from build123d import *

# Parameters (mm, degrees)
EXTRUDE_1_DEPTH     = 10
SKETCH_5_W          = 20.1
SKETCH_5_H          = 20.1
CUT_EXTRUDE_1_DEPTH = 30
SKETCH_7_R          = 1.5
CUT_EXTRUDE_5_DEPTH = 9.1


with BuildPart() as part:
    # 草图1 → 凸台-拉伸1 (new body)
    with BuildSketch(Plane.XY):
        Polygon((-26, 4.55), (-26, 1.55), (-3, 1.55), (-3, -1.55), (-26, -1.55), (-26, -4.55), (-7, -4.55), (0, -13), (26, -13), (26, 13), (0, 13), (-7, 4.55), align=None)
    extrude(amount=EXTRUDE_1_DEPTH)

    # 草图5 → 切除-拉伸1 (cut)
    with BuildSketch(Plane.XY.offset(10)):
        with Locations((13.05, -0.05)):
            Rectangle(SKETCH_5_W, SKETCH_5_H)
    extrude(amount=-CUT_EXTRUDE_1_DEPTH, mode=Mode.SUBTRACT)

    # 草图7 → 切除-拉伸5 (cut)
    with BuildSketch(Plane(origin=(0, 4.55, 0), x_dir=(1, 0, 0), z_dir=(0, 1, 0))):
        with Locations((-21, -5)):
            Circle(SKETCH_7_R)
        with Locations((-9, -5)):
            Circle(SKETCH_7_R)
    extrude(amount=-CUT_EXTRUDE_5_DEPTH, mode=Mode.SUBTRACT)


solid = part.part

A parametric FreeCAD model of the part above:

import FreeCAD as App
import Part
import Sketcher
from FreeCAD import Vector
Q = App.Units.Quantity

doc = App.newDocument("Part")
params = doc.addObject("Spreadsheet::Sheet", "Params")
for row, (alias, value) in enumerate([
    ("sketch1_width", "23 mm"),
    ("sketch1_width2", "19 mm"),
    ("sketch1_width3", "26 mm"),
    ("sketch1_height", "3 mm"),
    ("sketch1_height2", "3.1 mm"),
    ("pad1_length", "10 mm"),
    ("sketch2_width", "20.1 mm"),
    ("pocket1_length", "30 mm"),
    ("sketch3_diameter", "3 mm"),
    ("pocket2_length", "9.1 mm"),
], start=1):
    params.set(f"A{row}", alias)
    params.set(f"B{row}", "=" + value)
    params.setAlias(f"B{row}", alias)

body = doc.addObject("PartDesign::Body", "Body")

sketch1 = doc.addObject("Sketcher::SketchObject", "Sketch")
body.addObject(sketch1)
sketch1.AttachmentSupport = (doc.XY_Plane, [""])
sketch1.MapMode = "FlatFace"
sketch1.addGeometry(Part.LineSegment(Vector(-26, 4.55, 0), Vector(-26, 1.55, 0)), False)
sketch1.addGeometry(Part.LineSegment(Vector(-26, 1.55, 0), Vector(-3, 1.55, 0)), False)
sketch1.addGeometry(Part.LineSegment(Vector(-3, 1.55, 0), Vector(-3, -1.55, 0)), False)
sketch1.addGeometry(Part.LineSegment(Vector(-3, -1.55, 0), Vector(-26, -1.55, 0)), False)
sketch1.addGeometry(Part.LineSegment(Vector(-26, -1.55, 0), Vector(-26, -4.55, 0)), False)
sketch1.addGeometry(Part.LineSegment(Vector(-26, -4.55, 0), Vector(-7, -4.55, 0)), False)
sketch1.addGeometry(Part.LineSegment(Vector(-7, -4.55, 0), Vector(0, -13, 0)), False)
sketch1.addGeometry(Part.LineSegment(Vector(0, -13, 0), Vector(26, -13, 0)), False)
sketch1.addGeometry(Part.LineSegment(Vector(26, -13, 0), Vector(26, 13, 0)), False)
sketch1.addGeometry(Part.LineSegment(Vector(26, 13, 0), Vector(0, 13, 0)), False)
sketch1.addGeometry(Part.LineSegment(Vector(0, 13, 0), Vector(-7, 4.55, 0)), False)
sketch1.addGeometry(Part.LineSegment(Vector(-7, 4.55, 0), Vector(-26, 4.55, 0)), False)
sketch1.addConstraint(Sketcher.Constraint("Coincident", 0, 2, 1, 1))
sketch1.addConstraint(Sketcher.Constraint("Coincident", 1, 2, 2, 1))
sketch1.addConstraint(Sketcher.Constraint("Coincident", 2, 2, 3, 1))
sketch1.addConstraint(Sketcher.Constraint("Coincident", 3, 2, 4, 1))
sketch1.addConstraint(Sketcher.Constraint("Coincident", 4, 2, 5, 1))
sketch1.addConstraint(Sketcher.Constraint("Coincident", 5, 2, 6, 1))
sketch1.addConstraint(Sketcher.Constraint("Coincident", 6, 2, 7, 1))
sketch1.addConstraint(Sketcher.Constraint("Coincident", 7, 2, 8, 1))
sketch1.addConstraint(Sketcher.Constraint("Coincident", 8, 2, 9, 1))
sketch1.addConstraint(Sketcher.Constraint("Coincident", 9, 2, 10, 1))
sketch1.addConstraint(Sketcher.Constraint("Coincident", 10, 2, 11, 1))
sketch1.addConstraint(Sketcher.Constraint("Coincident", 11, 2, 0, 1))
sketch1.addConstraint(Sketcher.Constraint("Vertical", 0))
sketch1.addConstraint(Sketcher.Constraint("Horizontal", 1))
sketch1.addConstraint(Sketcher.Constraint("Vertical", 2))
sketch1.addConstraint(Sketcher.Constraint("Horizontal", 3))
sketch1.addConstraint(Sketcher.Constraint("Vertical", 4))
sketch1.addConstraint(Sketcher.Constraint("Horizontal", 5))
sketch1.addConstraint(Sketcher.Constraint("Horizontal", 7))
sketch1.addConstraint(Sketcher.Constraint("Vertical", 8))
sketch1.addConstraint(Sketcher.Constraint("Horizontal", 9))
sketch1.addConstraint(Sketcher.Constraint("Horizontal", 11))
sketch1.addConstraint(Sketcher.Constraint("Symmetric", 6, 2, 9, 2, -1, 1))
sketch1.addConstraint(Sketcher.Constraint("Symmetric", 0, 2, 3, 2, -1))
sketch1.addConstraint(Sketcher.Constraint("Symmetric", 5, 2, 10, 2, -1))
sketch1.addConstraint(Sketcher.Constraint("PointOnObject", 6, 2, -2))
sketch1.addConstraint(Sketcher.Constraint("Equal", 9, 8))
sketch1.addConstraint(Sketcher.Constraint("DistanceX", 1, 1, 1, 2, Q("23 mm")))
sketch1.addConstraint(Sketcher.Constraint("DistanceX", 5, 1, 5, 2, Q("19 mm")))
sketch1.addConstraint(Sketcher.Constraint("DistanceX", 7, 1, 7, 2, Q("26 mm")))
sketch1.addConstraint(Sketcher.Constraint("DistanceY", 0, 2, 0, 1, Q("3 mm")))
sketch1.addConstraint(Sketcher.Constraint("DistanceY", 2, 2, 2, 1, Q("3.1 mm")))
sketch1.addConstraint(Sketcher.Constraint("DistanceX", 0, 2, -1, 1, Q("26 mm")))
sketch1.setExpression("Constraints[27]", "Params.sketch1_width")
sketch1.setExpression("Constraints[28]", "Params.sketch1_width2")
sketch1.setExpression("Constraints[29]", "Params.sketch1_width3")
sketch1.setExpression("Constraints[30]", "Params.sketch1_height")
sketch1.setExpression("Constraints[31]", "Params.sketch1_height2")
pad1 = doc.addObject("PartDesign::Pad", "Pad")
body.addObject(pad1)
pad1.Profile = sketch1
pad1.setExpression("Length", "Params.pad1_length")

sketch2 = doc.addObject("Sketcher::SketchObject", "Sketch001")
body.addObject(sketch2)
sketch2.AttachmentSupport = (doc.XY_Plane, [""])
sketch2.MapMode = "FlatFace"
sketch2.AttachmentOffset = App.Placement(Vector(0, 0, 10), App.Rotation())
sketch2.addGeometry(Part.LineSegment(Vector(3, 10, 0), Vector(3, -10.1, 0)), False)
sketch2.addGeometry(Part.LineSegment(Vector(3, -10.1, 0), Vector(23.1, -10.1, 0)), False)
sketch2.addGeometry(Part.LineSegment(Vector(23.1, -10.1, 0), Vector(23.1, 10, 0)), False)
sketch2.addGeometry(Part.LineSegment(Vector(23.1, 10, 0), Vector(3, 10, 0)), False)
sketch2.addConstraint(Sketcher.Constraint("Coincident", 0, 2, 1, 1))
sketch2.addConstraint(Sketcher.Constraint("Coincident", 1, 2, 2, 1))
sketch2.addConstraint(Sketcher.Constraint("Coincident", 2, 2, 3, 1))
sketch2.addConstraint(Sketcher.Constraint("Coincident", 3, 2, 0, 1))
sketch2.addConstraint(Sketcher.Constraint("Vertical", 0))
sketch2.addConstraint(Sketcher.Constraint("Horizontal", 1))
sketch2.addConstraint(Sketcher.Constraint("Vertical", 2))
sketch2.addConstraint(Sketcher.Constraint("Horizontal", 3))
sketch2.addConstraint(Sketcher.Constraint("Equal", 3, 0))
sketch2.addConstraint(Sketcher.Constraint("DistanceX", 1, 1, 1, 2, Q("20.1 mm")))
sketch2.addConstraint(Sketcher.Constraint("DistanceX", -1, 1, 0, 2, Q("3 mm")))
sketch2.addConstraint(Sketcher.Constraint("DistanceY", -1, 1, 2, 2, Q("10 mm")))
sketch2.setExpression("Constraints[9]", "Params.sketch2_width")
pocket1 = doc.addObject("PartDesign::Pocket", "Pocket")
body.addObject(pocket1)
pocket1.Profile = sketch2
pocket1.setExpression("Length", "Params.pocket1_length")

sketch3 = doc.addObject("Sketcher::SketchObject", "Sketch002")
body.addObject(sketch3)
sketch3.AttachmentSupport = (doc.XZ_Plane, [""])
sketch3.MapMode = "FlatFace"
sketch3.AttachmentOffset = App.Placement(Vector(0, 0, -4.55), App.Rotation())
sketch3.addGeometry(Part.Circle(Vector(-21, 5, 0), Vector(0, 0, 1), 1.5), False)
sketch3.addGeometry(Part.Circle(Vector(-9, 5, 0), Vector(0, 0, 1), 1.5), False)
sketch3.addConstraint(Sketcher.Constraint("Equal", 0, 1))
sketch3.addConstraint(Sketcher.Constraint("Horizontal", 0, 3, 1, 3))
sketch3.addConstraint(Sketcher.Constraint("Diameter", 0, Q("3 mm")))
sketch3.addConstraint(Sketcher.Constraint("DistanceX", 0, 3, -1, 1, Q("21 mm")))
sketch3.addConstraint(Sketcher.Constraint("DistanceY", -1, 1, 0, 3, Q("5 mm")))
sketch3.addConstraint(Sketcher.Constraint("DistanceX", 1, 3, -1, 1, Q("9 mm")))
sketch3.setExpression("Constraints[2]", "Params.sketch3_diameter")
pocket2 = doc.addObject("PartDesign::Pocket", "Pocket001")
body.addObject(pocket2)
pocket2.Profile = sketch3
pocket2.setExpression("Length", "Params.pocket2_length")
pocket2.Reversed = True

doc.recompute()
